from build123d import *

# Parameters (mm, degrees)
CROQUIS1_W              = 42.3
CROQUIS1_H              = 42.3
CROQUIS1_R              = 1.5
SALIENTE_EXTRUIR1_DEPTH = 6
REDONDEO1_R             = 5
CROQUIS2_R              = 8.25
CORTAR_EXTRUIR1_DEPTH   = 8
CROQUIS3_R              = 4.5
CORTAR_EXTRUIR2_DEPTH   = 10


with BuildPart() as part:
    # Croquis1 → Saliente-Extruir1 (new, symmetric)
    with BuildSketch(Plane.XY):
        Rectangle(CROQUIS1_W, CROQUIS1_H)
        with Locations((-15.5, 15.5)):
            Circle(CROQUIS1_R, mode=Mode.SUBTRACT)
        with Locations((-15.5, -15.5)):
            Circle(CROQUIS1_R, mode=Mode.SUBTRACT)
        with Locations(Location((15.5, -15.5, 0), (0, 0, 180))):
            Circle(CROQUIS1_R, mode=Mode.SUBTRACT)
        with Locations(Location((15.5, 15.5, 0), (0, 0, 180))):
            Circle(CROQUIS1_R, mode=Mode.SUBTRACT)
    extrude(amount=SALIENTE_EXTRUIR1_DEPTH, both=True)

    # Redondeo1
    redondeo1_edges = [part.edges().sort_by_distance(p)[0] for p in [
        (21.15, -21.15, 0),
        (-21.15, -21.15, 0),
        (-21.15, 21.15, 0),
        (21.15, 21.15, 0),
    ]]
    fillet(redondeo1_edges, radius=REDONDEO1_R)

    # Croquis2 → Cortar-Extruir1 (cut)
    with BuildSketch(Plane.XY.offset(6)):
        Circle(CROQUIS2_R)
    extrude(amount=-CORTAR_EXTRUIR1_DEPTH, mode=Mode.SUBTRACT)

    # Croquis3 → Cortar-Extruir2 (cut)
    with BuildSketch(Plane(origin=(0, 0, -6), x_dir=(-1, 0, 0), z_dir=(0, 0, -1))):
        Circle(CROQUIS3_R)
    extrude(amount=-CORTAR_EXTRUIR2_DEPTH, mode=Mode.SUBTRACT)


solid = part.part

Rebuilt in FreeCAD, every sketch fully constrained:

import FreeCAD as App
import Part
import Sketcher
Q = App.Units.Quantity


def edges_at(feature, points):
    """Names of the edges that pass closest to the given points."""
    edges = feature.Shape.Edges
    near = lambda p: min(range(len(edges)), key=lambda i: edges[i].distToShape(Part.Vertex(*p))[0])
    return sorted({f"Edge{near(p) + 1}" for p in points})


def add_polygon(sketch, points):
    """Adds a closed chain of lines whose ends are joined by coincident constraints."""
    first, n = sketch.GeometryCount, len(points)
    for a, b in zip(points, points[1:] + points[:1]):
        sketch.addGeometry(Part.LineSegment(App.Vector(*a, 0), App.Vector(*b, 0)), False)
    for i in range(n):
        sketch.addConstraint(Sketcher.Constraint("Coincident", first + i, 2, first + (i + 1) % n, 1))

doc = App.newDocument("Part")
body = doc.addObject("PartDesign::Body", "Body")

# Sketch on XY plane
sketch1 = body.newObject("Sketcher::SketchObject", "Sketch")
sketch1.AttachmentSupport = (doc.getObject("XY_Plane"), [""])
sketch1.MapMode = "FlatFace"
add_polygon(sketch1, [(-21.1, 21.1), (-21.1, -21.1), (21.1, -21.1), (21.1, 21.1)])  # lines 0-3
sketch1.addGeometry(Part.Circle(App.Vector(-15.5, -15.5, 0), App.Vector(0, 0, 1), 1.5), False)  # 4
sketch1.addGeometry(Part.Circle(App.Vector(15.5, -15.5, 0), App.Vector(0, 0, 1), 1.5), False)  # 5
sketch1.addGeometry(Part.Circle(App.Vector(-15.5, 15.5, 0), App.Vector(0, 0, 1), 1.5), False)  # 6
sketch1.addGeometry(Part.Circle(App.Vector(15.5, 15.5, 0), App.Vector(0, 0, 1), 1.5), False)  # 7
sketch1.addConstraint([
    Sketcher.Constraint("Vertical", 0),
    Sketcher.Constraint("Horizontal", 1),
    Sketcher.Constraint("Vertical", 2),
    Sketcher.Constraint("Horizontal", 3),
    Sketcher.Constraint("Equal", 4, 5),
    Sketcher.Constraint("Equal", 5, 6),
    Sketcher.Constraint("Equal", 6, 7),
    Sketcher.Constraint("Symmetric", 5, 3, 6, 3, -1, 1),
    Sketcher.Constraint("Symmetric", 4, 3, 7, 3, -1, 1),
    Sketcher.Constraint("Symmetric", 0, 2, 2, 2, -1, 1),
    Sketcher.Constraint("Symmetric", 4, 3, 5, 3, -2),
    Sketcher.Constraint("Equal", 3, 0),
    Sketcher.Constraint("Diameter", 4, Q("3 mm")),
    Sketcher.Constraint("DistanceX", 1, 1, 1, 2, Q("42.3 mm")),
    Sketcher.Constraint("DistanceX", 4, 3, 5, 3, Q("31 mm")),
    Sketcher.Constraint("DistanceY", 4, 3, 6, 3, Q("31 mm")),
])
pad1 = body.newObject("PartDesign::Pad", "Pad")
pad1.Profile = sketch1
pad1.Length = 12
pad1.Midplane = True
doc.recompute()

fillet = body.newObject("PartDesign::Fillet", "Fillet")
fillet.Base = (pad1, edges_at(pad1, [
    (21.15, -21.15, 0),
    (-21.15, -21.15, 0),
    (-21.15, 21.15, 0),
    (21.15, 21.15, 0),
]))
fillet.Radius = 5

# Sketch on XY plane
sketch2 = body.newObject("Sketcher::SketchObject", "Sketch001")
sketch2.AttachmentSupport = (doc.getObject("XY_Plane"), [""])
sketch2.MapMode = "FlatFace"
sketch2.AttachmentOffset = App.Placement(App.Vector(0, 0, 6), App.Rotation())
sketch2.addGeometry(Part.Circle(App.Vector(0, 0, 0), App.Vector(0, 0, 1), 8), False)
sketch2.addConstraint([
    Sketcher.Constraint("Coincident", 0, 3, -1, 1),
    Sketcher.Constraint("Diameter", 0, Q("16.5 mm")),
])
pocket1 = body.newObject("PartDesign::Pocket", "Pocket")
pocket1.Profile = sketch2
pocket1.Length = 8

# Sketch on XY plane
sketch3 = body.newObject("Sketcher::SketchObject", "Sketch002")
sketch3.AttachmentSupport = (doc.getObject("XY_Plane"), [""])
sketch3.MapMode = "FlatFace"
sketch3.AttachmentOffset = App.Placement(App.Vector(0, 0, -6), App.Rotation())
sketch3.addGeometry(Part.Circle(App.Vector(0, 0, 0), App.Vector(0, 0, 1), 4.5), False)
sketch3.addConstraint([
    Sketcher.Constraint("Coincident", 0, 3, -1, 1),
    Sketcher.Constraint("Diameter", 0, Q("9 mm")),
])
pocket2 = body.newObject("PartDesign::Pocket", "Pocket001")
pocket2.Profile = sketch3
pocket2.Length = 10
pocket2.Reversed = True

doc.recompute()
